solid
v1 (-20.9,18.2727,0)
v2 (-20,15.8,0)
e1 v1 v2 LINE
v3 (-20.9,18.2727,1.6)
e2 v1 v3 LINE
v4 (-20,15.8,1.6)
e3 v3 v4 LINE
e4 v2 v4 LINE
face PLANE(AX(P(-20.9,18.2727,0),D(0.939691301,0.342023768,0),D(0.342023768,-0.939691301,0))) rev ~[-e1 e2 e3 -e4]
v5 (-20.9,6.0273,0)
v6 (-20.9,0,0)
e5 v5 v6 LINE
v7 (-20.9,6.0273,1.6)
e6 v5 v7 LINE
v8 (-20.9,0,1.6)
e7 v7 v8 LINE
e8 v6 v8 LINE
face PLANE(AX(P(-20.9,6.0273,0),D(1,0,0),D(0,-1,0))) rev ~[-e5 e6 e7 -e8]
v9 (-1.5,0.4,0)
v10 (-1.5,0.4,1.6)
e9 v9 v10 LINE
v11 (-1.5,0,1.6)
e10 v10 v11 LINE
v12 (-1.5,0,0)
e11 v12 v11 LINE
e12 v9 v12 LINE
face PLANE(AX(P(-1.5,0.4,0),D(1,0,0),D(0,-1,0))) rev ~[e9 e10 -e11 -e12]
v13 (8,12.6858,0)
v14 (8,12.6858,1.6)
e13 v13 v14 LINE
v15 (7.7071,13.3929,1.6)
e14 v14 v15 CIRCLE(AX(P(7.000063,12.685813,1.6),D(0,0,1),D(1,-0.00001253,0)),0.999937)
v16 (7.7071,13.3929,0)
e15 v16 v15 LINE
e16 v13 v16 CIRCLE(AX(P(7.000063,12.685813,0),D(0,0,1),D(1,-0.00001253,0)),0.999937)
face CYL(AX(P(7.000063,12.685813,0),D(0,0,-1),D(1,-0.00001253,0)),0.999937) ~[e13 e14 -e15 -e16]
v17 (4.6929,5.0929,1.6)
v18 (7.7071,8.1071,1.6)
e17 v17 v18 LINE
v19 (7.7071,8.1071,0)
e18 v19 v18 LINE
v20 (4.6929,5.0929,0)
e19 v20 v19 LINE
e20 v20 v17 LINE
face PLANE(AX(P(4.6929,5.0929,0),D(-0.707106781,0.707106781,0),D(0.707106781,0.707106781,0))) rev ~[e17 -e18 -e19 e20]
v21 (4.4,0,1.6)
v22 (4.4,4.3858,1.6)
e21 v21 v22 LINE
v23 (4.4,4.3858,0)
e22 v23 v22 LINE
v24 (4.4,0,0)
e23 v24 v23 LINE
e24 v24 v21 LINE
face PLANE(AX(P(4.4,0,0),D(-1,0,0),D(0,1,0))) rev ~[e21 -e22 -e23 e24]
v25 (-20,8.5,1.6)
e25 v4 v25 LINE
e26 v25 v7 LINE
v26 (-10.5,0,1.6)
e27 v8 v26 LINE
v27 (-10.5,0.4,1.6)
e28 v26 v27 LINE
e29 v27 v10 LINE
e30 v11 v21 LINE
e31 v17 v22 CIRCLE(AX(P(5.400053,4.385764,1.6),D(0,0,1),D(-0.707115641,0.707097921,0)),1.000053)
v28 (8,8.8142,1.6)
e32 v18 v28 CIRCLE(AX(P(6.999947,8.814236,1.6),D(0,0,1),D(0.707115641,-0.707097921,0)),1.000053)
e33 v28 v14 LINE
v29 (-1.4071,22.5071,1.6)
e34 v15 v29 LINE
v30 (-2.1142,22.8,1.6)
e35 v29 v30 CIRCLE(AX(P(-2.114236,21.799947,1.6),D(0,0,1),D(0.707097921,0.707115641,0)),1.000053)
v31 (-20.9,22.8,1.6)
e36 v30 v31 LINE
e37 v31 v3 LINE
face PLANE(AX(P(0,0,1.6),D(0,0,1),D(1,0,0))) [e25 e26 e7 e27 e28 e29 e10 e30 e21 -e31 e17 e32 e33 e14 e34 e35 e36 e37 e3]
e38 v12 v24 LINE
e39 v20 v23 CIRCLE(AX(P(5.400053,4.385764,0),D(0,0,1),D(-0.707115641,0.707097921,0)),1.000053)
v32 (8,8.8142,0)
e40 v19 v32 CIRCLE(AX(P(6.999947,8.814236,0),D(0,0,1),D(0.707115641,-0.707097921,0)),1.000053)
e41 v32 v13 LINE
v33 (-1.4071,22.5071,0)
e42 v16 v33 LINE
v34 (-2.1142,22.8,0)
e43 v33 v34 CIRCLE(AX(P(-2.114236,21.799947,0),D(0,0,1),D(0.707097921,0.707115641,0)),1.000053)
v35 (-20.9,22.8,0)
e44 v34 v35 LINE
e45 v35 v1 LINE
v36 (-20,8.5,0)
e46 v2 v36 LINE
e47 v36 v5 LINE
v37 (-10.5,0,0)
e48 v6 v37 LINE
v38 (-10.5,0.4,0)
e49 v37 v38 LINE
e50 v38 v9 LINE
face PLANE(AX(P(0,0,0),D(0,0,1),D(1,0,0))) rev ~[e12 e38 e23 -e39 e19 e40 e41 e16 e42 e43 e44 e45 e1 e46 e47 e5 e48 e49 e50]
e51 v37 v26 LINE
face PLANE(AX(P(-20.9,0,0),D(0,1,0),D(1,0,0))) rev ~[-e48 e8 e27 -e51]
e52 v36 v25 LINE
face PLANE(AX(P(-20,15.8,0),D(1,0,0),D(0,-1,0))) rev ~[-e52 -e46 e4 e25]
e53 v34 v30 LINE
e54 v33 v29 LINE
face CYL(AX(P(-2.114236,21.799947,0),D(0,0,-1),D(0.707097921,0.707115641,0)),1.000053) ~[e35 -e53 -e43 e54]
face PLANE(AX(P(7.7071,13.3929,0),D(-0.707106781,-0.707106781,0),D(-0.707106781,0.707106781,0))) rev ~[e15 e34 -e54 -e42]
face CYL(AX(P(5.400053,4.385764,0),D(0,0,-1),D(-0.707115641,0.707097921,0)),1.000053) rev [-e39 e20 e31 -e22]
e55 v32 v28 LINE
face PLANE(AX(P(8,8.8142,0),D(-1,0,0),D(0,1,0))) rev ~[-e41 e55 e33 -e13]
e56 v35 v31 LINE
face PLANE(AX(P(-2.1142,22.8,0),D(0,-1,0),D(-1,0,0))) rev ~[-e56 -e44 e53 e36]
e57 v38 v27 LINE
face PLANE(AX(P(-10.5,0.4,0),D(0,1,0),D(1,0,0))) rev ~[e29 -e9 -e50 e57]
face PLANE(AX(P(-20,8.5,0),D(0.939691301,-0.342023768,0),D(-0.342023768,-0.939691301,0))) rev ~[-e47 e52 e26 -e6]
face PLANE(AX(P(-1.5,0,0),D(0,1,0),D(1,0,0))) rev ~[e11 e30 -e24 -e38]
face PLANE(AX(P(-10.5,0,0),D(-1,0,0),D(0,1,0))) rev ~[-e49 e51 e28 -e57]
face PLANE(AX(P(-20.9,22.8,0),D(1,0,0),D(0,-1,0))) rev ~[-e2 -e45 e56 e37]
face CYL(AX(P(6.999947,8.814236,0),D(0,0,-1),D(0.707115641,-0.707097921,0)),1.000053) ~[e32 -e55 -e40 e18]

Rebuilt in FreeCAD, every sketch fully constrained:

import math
import FreeCAD as App
import Part
import Sketcher
Q = App.Units.Quantity

doc = App.newDocument("Part")
body = doc.addObject("PartDesign::Body", "Body")

# Sketch on XY plane
sketch1 = doc.addObject("Sketcher::SketchObject", "Sketch")
body.addObject(sketch1)
sketch1.AttachmentSupport = (doc.XY_Plane, [""])
sketch1.MapMode = "FlatFace"
sketch1.addGeometry(Part.LineSegment(App.Vector(-20.9, 6.03, 0), App.Vector(-20.9, 0, 0)), False)
sketch1.addGeometry(Part.LineSegment(App.Vector(-20.9, 0, 0), App.Vector(-10.5, 0, 0)), False)
sketch1.addGeometry(Part.LineSegment(App.Vector(-10.5, 0, 0), App.Vector(-10.5, 0.4, 0)), False)
sketch1.addGeometry(Part.LineSegment(App.Vector(-10.5, 0.4, 0), App.Vector(-1.5, 0.4, 0)), False)
sketch1.addGeometry(Part.LineSegment(App.Vector(-1.5, 0.4, 0), App.Vector(-1.5, 0, 0)), False)
sketch1.addGeometry(Part.LineSegment(App.Vector(-1.5, 0, 0), App.Vector(4.4, 0, 0)), False)
sketch1.addGeometry(Part.LineSegment(App.Vector(4.4, 0, 0), App.Vector(4.4, 4.39, 0)), False)
sketch1.addGeometry(Part.ArcOfCircle(Part.Circle(App.Vector(5.4, 4.39, 0), App.Vector(0, 0, 1), 1), math.radians(135), math.radians(180)), False)
sketch1.addGeometry(Part.LineSegment(App.Vector(4.69, 5.09, 0), App.Vector(7.71, 8.11, 0)), False)
sketch1.addGeometry(Part.ArcOfCircle(Part.Circle(App.Vector(7, 8.81, 0), App.Vector(0, 0, 1), 1), math.radians(-45), math.radians(0)), False)
sketch1.addGeometry(Part.LineSegment(App.Vector(8, 8.81, 0), App.Vector(8, 12.69, 0)), False)
sketch1.addGeometry(Part.ArcOfCircle(Part.Circle(App.Vector(7, 12.69, 0), App.Vector(0, 0, 1), 1), math.radians(0), math.radians(45)), False)
sketch1.addGeometry(Part.LineSegment(App.Vector(7.71, 13.39, 0), App.Vector(-1.41, 22.51, 0)), False)
sketch1.addGeometry(Part.ArcOfCircle(Part.Circle(App.Vector(-2.11, 21.8, 0), App.Vector(0, 0, 1), 1), math.radians(45), math.radians(90)), False)
sketch1.addGeometry(Part.LineSegment(App.Vector(-2.11, 22.8, 0), App.Vector(-20.9, 22.8, 0)), False)
sketch1.addGeometry(Part.LineSegment(App.Vector(-20.9, 22.8, 0), App.Vector(-20.9, 18.27, 0)), False)
sketch1.addGeometry(Part.LineSegment(App.Vector(-20.9, 18.27, 0), App.Vector(-20, 15.8, 0)), False)
sketch1.addGeometry(Part.LineSegment(App.Vector(-20, 15.8, 0), App.Vector(-20, 8.5, 0)), False)
sketch1.addGeometry(Part.LineSegment(App.Vector(-20, 8.5, 0), App.Vector(-20.9, 6.03, 0)), False)
sketch1.addConstraint(Sketcher.Constraint("Coincident", 0, 2, 1, 1))
sketch1.addConstraint(Sketcher.Constraint("Coincident", 1, 2, 2, 1))
sketch1.addConstraint(Sketcher.Constraint("Coincident", 2, 2, 3, 1))
sketch1.addConstraint(Sketcher.Constraint("Coincident", 3, 2, 4, 1))
sketch1.addConstraint(Sketcher.Constraint("Coincident", 4, 2, 5, 1))
sketch1.addConstraint(Sketcher.Constraint("Coincident", 5, 2, 6, 1))
sketch1.addConstraint(Sketcher.Constraint("Tangent", 6, 2, 7, 2))
sketch1.addConstraint(Sketcher.Constraint("Tangent", 7, 1, 8, 1))
sketch1.addConstraint(Sketcher.Constraint("Tangent", 8, 2, 9, 1))
sketch1.addConstraint(Sketcher.Constraint("Tangent", 9, 2, 10, 1))
sketch1.addConstraint(Sketcher.Constraint("Tangent", 10, 2, 11, 1))
sketch1.addConstraint(Sketcher.Constraint("Tangent", 11, 2, 12, 1))
sketch1.addConstraint(Sketcher.Constraint("Tangent", 12, 2, 13, 1))
sketch1.addConstraint(Sketcher.Constraint("Tangent", 13, 2, 14, 1))
sketch1.addConstraint(Sketcher.Constraint("Coincident", 14, 2, 15, 1))
sketch1.addConstraint(Sketcher.Constraint("Coincident", 15, 2, 16, 1))
sketch1.addConstraint(Sketcher.Constraint("Coincident", 16, 2, 17, 1))
sketch1.addConstraint(Sketcher.Constraint("Coincident", 17, 2, 18, 1))
sketch1.addConstraint(Sketcher.Constraint("Coincident", 18, 2, 0, 1))
sketch1.addConstraint(Sketcher.Constraint("Vertical", 0))
sketch1.addConstraint(Sketcher.Constraint("Horizontal", 1))
sketch1.addConstraint(Sketcher.Constraint("Vertical", 2))
sketch1.addConstraint(Sketcher.Constraint("Horizontal", 3))
sketch1.addConstraint(Sketcher.Constraint("Vertical", 4))
sketch1.addConstraint(Sketcher.Constraint("Horizontal", 5))
sketch1.addConstraint(Sketcher.Constraint("Vertical", 6))
sketch1.addConstraint(Sketcher.Constraint("Vertical", 10))
sketch1.addConstraint(Sketcher.Constraint("Horizontal", 14))
sketch1.addConstraint(Sketcher.Constraint("Vertical", 15))
sketch1.addConstraint(Sketcher.Constraint("Vertical", 17))
sketch1.addConstraint(Sketcher.Constraint("Equal", 7, 9))
sketch1.addConstraint(Sketcher.Constraint("Equal", 9, 11))
sketch1.addConstraint(Sketcher.Constraint("Equal", 11, 13))
sketch1.addConstraint(Sketcher.Constraint("PointOnObject", 0, 2, -1))
sketch1.addConstraint(Sketcher.Constraint("PointOnObject", 4, 2, -1))
sketch1.addConstraint(Sketcher.Constraint("Perpendicular", 8, 12))
sketch1.addConstraint(Sketcher.Constraint("Vertical", 8, 2, 11, 2))
sketch1.addConstraint(Sketcher.Constraint("Vertical", 0, 2, 14, 2))
sketch1.addConstraint(Sketcher.Constraint("Equal", 16, 18))
sketch1.addConstraint(Sketcher.Constraint("Radius", 7, Q("1 mm")))
sketch1.addConstraint(Sketcher.Constraint("DistanceX", 3, 1, 3, 2, Q("9 mm")))
sketch1.addConstraint(Sketcher.Constraint("Angle", 16, Q("-69.9998 deg")))
sketch1.addConstraint(Sketcher.Constraint("DistanceX", 1, 1, 1, 2, Q("10.4 mm")))
sketch1.addConstraint(Sketcher.Constraint("DistanceX", 5, 1, 5, 2, Q("5.9 mm")))
sketch1.addConstraint(Sketcher.Constraint("DistanceY", 2, 1, 2, 2, Q("0.4 mm")))
sketch1.addConstraint(Sketcher.Constraint("DistanceY", 17, 2, 17, 1, Q("7.3 mm")))
sketch1.addConstraint(Sketcher.Constraint("DistanceX", -1, 1, 9, 3, Q("7 mm")))
sketch1.addConstraint(Sketcher.Constraint("DistanceX", 16, 2, -1, 1, Q("20 mm")))
sketch1.addConstraint(Sketcher.Constraint("DistanceY", 16, 2, 14, 2, Q("7 mm")))
sketch1.addConstraint(Sketcher.Constraint("DistanceX", -1, 1, 7, 3, Q("5.4 mm")))
sketch1.addConstraint(Sketcher.Constraint("DistanceY", -1, 1, 13, 3, Q("21.8 mm")))
sketch1.addConstraint(Sketcher.Constraint("DistanceY", 7, 3, 11, 3, Q("8.3 mm")))
sketch1.addConstraint(Sketcher.Constraint("DistanceX", 14, 2, 14, 1, Q("18.7858 mm")))
pad1 = doc.addObject("PartDesign::Pad", "Pad")
body.addObject(pad1)
pad1.Profile = sketch1
pad1.Length = 1.6

doc.recompute()
